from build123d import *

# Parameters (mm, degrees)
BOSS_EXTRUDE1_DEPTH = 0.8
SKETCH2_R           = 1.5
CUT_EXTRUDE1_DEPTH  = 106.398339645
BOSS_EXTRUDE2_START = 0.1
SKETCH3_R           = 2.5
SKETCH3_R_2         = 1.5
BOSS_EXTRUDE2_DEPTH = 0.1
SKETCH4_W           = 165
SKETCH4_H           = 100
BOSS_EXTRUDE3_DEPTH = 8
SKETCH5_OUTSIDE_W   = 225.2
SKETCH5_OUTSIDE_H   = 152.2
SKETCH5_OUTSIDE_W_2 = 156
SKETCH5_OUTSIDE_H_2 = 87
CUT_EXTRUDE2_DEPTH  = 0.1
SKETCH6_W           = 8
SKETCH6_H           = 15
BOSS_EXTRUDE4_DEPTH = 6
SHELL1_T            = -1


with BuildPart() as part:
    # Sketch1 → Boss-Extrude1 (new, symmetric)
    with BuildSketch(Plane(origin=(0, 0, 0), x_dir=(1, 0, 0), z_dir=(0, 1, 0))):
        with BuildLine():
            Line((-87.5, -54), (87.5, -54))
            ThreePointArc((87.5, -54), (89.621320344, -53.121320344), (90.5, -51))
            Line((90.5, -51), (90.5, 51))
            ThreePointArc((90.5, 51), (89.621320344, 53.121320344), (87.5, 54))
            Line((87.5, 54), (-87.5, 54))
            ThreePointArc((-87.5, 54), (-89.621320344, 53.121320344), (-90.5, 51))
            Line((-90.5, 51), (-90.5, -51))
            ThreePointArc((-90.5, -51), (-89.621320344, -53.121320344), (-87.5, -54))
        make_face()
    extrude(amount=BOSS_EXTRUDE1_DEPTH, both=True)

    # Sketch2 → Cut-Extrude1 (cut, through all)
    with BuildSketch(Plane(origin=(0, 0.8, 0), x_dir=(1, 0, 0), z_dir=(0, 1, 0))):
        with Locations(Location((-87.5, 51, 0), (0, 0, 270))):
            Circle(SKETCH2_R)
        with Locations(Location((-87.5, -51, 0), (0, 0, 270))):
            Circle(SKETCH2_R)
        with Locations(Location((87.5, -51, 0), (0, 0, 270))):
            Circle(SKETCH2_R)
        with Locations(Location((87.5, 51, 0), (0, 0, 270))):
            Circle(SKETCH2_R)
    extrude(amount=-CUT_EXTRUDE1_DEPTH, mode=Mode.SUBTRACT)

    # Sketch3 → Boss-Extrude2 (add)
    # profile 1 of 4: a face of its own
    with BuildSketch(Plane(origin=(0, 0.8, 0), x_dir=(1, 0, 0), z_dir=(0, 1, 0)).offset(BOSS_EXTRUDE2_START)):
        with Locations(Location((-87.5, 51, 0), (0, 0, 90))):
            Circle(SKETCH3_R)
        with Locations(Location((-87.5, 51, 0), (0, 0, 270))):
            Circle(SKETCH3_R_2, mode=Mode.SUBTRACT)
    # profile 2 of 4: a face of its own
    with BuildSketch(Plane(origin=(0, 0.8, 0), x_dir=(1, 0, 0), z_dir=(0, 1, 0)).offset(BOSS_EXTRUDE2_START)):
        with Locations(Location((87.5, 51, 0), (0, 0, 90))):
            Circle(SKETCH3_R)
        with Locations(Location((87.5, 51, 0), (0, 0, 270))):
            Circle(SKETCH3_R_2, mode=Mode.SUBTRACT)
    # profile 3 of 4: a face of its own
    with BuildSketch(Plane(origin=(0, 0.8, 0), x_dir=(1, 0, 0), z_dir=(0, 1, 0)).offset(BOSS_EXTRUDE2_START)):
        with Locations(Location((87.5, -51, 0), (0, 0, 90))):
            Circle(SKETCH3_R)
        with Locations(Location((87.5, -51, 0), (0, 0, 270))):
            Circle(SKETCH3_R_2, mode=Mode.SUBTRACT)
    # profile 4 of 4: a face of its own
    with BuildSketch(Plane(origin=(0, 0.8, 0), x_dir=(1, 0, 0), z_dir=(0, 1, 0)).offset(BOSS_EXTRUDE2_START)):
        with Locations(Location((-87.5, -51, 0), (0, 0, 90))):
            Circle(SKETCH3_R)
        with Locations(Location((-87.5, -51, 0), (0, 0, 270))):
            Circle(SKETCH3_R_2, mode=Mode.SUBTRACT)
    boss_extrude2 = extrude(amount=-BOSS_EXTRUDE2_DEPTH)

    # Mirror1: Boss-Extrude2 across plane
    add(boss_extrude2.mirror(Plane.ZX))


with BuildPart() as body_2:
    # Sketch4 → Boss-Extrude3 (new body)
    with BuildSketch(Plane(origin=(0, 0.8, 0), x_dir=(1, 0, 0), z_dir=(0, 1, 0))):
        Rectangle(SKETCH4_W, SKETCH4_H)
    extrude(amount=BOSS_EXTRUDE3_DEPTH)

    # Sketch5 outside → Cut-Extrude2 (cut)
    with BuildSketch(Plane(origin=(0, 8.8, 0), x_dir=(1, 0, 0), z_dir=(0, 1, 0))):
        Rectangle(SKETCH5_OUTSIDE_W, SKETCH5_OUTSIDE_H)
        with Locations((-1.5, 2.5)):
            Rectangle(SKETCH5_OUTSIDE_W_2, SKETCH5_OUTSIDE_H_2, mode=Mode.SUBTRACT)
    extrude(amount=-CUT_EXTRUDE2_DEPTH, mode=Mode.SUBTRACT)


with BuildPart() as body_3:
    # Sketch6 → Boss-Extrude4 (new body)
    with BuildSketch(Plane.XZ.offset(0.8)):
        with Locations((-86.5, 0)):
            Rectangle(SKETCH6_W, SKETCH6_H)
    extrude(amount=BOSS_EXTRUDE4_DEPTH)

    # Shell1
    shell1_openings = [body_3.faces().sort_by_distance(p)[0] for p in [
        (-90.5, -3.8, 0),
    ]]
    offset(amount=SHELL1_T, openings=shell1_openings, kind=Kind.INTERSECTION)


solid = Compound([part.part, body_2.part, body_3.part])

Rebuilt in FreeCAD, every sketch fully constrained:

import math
import FreeCAD as App
import Part
import Sketcher
from FreeCAD import Vector
Q = App.Units.Quantity


def faces_at(feature, points):
    """Names of the faces that lie closest to the given points."""
    faces = feature.Shape.Faces
    near = lambda p: min(range(len(faces)), key=lambda i: faces[i].distToShape(Part.Vertex(*p))[0])
    return sorted({f"Face{near(p) + 1}" for p in points})


def add_polygon(sketch, points):
    """Adds a closed chain of lines whose ends are joined by coincident constraints."""
    first, n = sketch.GeometryCount, len(points)
    for a, b in zip(points, points[1:] + points[:1]):
        sketch.addGeometry(Part.LineSegment(App.Vector(*a, 0), App.Vector(*b, 0)), False)
    for i in range(n):
        sketch.addConstraint(Sketcher.Constraint("Coincident", first + i, 2, first + (i + 1) % n, 1))

doc = App.newDocument("Part")
body = doc.addObject("PartDesign::Body", "Body")

# Sketch on XZ plane
sketch1 = doc.addObject("Sketcher::SketchObject", "Sketch")
body.addObject(sketch1)
sketch1.AttachmentSupport = (doc.XZ_Plane, [""])
sketch1.MapMode = "FlatFace"
sketch1.addGeometry([
    Part.LineSegment(Vector(-87.5, 54, 0), Vector(87.5, 54, 0)),  # 0
    Part.ArcOfCircle(Part.Circle(Vector(87.5, 51, 0), Vector(0, 0, 1), 3), math.radians(0), math.radians(90)),  # 1
    Part.LineSegment(Vector(90.5, 51, 0), Vector(90.5, -51, 0)),  # 2
    Part.ArcOfCircle(Part.Circle(Vector(87.5, -51, 0), Vector(0, 0, 1), 3), math.radians(-90), math.radians(0)),  # 3
    Part.LineSegment(Vector(87.5, -54, 0), Vector(-87.5, -54, 0)),  # 4
    Part.ArcOfCircle(Part.Circle(Vector(-87.5, -51, 0), Vector(0, 0, 1), 3), math.radians(180), math.radians(270)),  # 5
    Part.LineSegment(Vector(-90.5, -51, 0), Vector(-90.5, 51, 0)),  # 6
    Part.ArcOfCircle(Part.Circle(Vector(-87.5, 51, 0), Vector(0, 0, 1), 3), math.radians(90), math.radians(180)),  # 7
], False)
sketch1.addConstraint([
    Sketcher.Constraint("Tangent", 0, 2, 1, 2),
    Sketcher.Constraint("Tangent", 1, 1, 2, 1),
    Sketcher.Constraint("Tangent", 2, 2, 3, 2),
    Sketcher.Constraint("Tangent", 3, 1, 4, 1),
    Sketcher.Constraint("Tangent", 4, 2, 5, 2),
    Sketcher.Constraint("Tangent", 5, 1, 6, 1),
    Sketcher.Constraint("Tangent", 6, 2, 7, 2),
    Sketcher.Constraint("Tangent", 7, 1, 0, 1),
    Sketcher.Constraint("Horizontal", 0),
    Sketcher.Constraint("Vertical", 2),
    Sketcher.Constraint("Horizontal", 4),
    Sketcher.Constraint("Vertical", 6),
    Sketcher.Constraint("Equal", 1, 3),
    Sketcher.Constraint("Equal", 3, 5),
    Sketcher.Constraint("Equal", 5, 7),
    Sketcher.Constraint("Symmetric", 1, 3, 5, 3, -1, 1),
    Sketcher.Constraint("Radius", 1, Q("3 mm")),
    Sketcher.Constraint("DistanceX", 0, 1, 0, 2, Q("175 mm")),
    Sketcher.Constraint("DistanceY", 2, 2, 2, 1, Q("102 mm")),
])
pad1 = doc.addObject("PartDesign::Pad", "Pad")
body.addObject(pad1)
pad1.Profile = sketch1
pad1.Length = 1.6
pad1.Midplane = True

# Sketch on XZ plane
sketch2 = doc.addObject("Sketcher::SketchObject", "Sketch001")
body.addObject(sketch2)
sketch2.AttachmentSupport = (doc.XZ_Plane, [""])
sketch2.MapMode = "FlatFace"
sketch2.AttachmentOffset = App.Placement(Vector(0, 0, -0.8), App.Rotation())
sketch2.addGeometry([
    Part.Circle(Vector(-87.5, -51, 0), Vector(0, 0, 1), 1.5),
    Part.Circle(Vector(-87.5, 51, 0), Vector(0, 0, 1), 1.5),
    Part.Circle(Vector(87.5, 51, 0), Vector(0, 0, 1), 1.5),
    Part.Circle(Vector(87.5, -51, 0), Vector(0, 0, 1), 1.5),
], False)
sketch2.addConstraint([
    Sketcher.Constraint("Equal", 0, 1),
    Sketcher.Constraint("Equal", 1, 2),
    Sketcher.Constraint("Equal", 2, 3),
    Sketcher.Constraint("Symmetric", 0, 3, 2, 3, -1, 1),
    Sketcher.Constraint("Symmetric", 1, 3, 3, 3, -1, 1),
    Sketcher.Constraint("Symmetric", 1, 3, 2, 3, -2),
    Sketcher.Constraint("Diameter", 0, Q("3 mm")),
    Sketcher.Constraint("DistanceY", 0, 3, -1, 1, Q("51 mm")),
    Sketcher.Constraint("DistanceX", 1, 3, 2, 3, Q("175 mm")),
])
pocket1 = doc.addObject("PartDesign::Pocket", "Pocket")
body.addObject(pocket1)
pocket1.Profile = sketch2
pocket1.Type = "ThroughAll"
pocket1.Reversed = True

# Sketch on XZ plane
sketch3 = doc.addObject("Sketcher::SketchObject", "Sketch002")
body.addObject(sketch3)
sketch3.AttachmentSupport = (doc.XZ_Plane, [""])
sketch3.MapMode = "FlatFace"
sketch3.AttachmentOffset = App.Placement(Vector(0, 0, -0.9), App.Rotation())
sketch3.addGeometry([
    Part.Circle(Vector(-87.5, -51, 0), Vector(0, 0, 1), 2.5),  # 0
    Part.Circle(Vector(-87.5, -51, 0), Vector(0, 0, 1), 1.5),  # 1
    Part.Circle(Vector(87.5, -51, 0), Vector(0, 0, 1), 2.5),  # 2
    Part.Circle(Vector(87.5, -51, 0), Vector(0, 0, 1), 1.5),  # 3
    Part.Circle(Vector(87.5, 51, 0), Vector(0, 0, 1), 2.5),  # 4
    Part.Circle(Vector(87.5, 51, 0), Vector(0, 0, 1), 1.5),  # 5
    Part.Circle(Vector(-87.5, 51, 0), Vector(0, 0, 1), 2.5),  # 6
    Part.Circle(Vector(-87.5, 51, 0), Vector(0, 0, 1), 1.5),  # 7
], False)
sketch3.addConstraint([
    Sketcher.Constraint("Coincident", 1, 3, 0, 3),
    Sketcher.Constraint("Coincident", 3, 3, 2, 3),
    Sketcher.Constraint("Coincident", 5, 3, 4, 3),
    Sketcher.Constraint("Coincident", 7, 3, 6, 3),
    Sketcher.Constraint("Equal", 0, 2),
    Sketcher.Constraint("Equal", 1, 3),
    Sketcher.Constraint("Equal", 2, 4),
    Sketcher.Constraint("Equal", 3, 5),
    Sketcher.Constraint("Equal", 4, 6),
    Sketcher.Constraint("Equal", 5, 7),
    Sketcher.Constraint("Symmetric", 0, 3, 4, 3, -1, 1),
    Sketcher.Constraint("Symmetric", 2, 3, 6, 3, -1, 1),
    Sketcher.Constraint("Symmetric", 0, 3, 2, 3, -2),
    Sketcher.Constraint("Diameter", 0, Q("5 mm")),
    Sketcher.Constraint("Diameter", 1, Q("3 mm")),
    Sketcher.Constraint("DistanceY", 0, 3, -1, 1, Q("51 mm")),
    Sketcher.Constraint("DistanceX", 0, 3, 2, 3, Q("175 mm")),
])
pad2 = doc.addObject("PartDesign::Pad", "Pad001")
body.addObject(pad2)
pad2.Profile = sketch3
pad2.Length = 0.1
doc.recompute()

mirrored = doc.addObject("PartDesign::Mirrored", "Mirrored")
body.addObject(mirrored)
mirrored.Originals = [pad2]
mirrored.MirrorPlane = (doc.XZ_Plane, [""])
body.Tip = mirrored
body2 = doc.addObject("PartDesign::Body", "Body001")

# Sketch on XZ plane
sketch4 = doc.addObject("Sketcher::SketchObject", "Sketch003")
body2.addObject(sketch4)
sketch4.AttachmentSupport = (doc.getObject("XZ_Plane001"), [""])
sketch4.MapMode = "FlatFace"
sketch4.AttachmentOffset = App.Placement(Vector(0, 0, -0.8), App.Rotation())
add_polygon(sketch4, [(-82.5, -50), (-82.5, 50), (82.5, 50), (82.5, -50)])  # lines 0-3
sketch4.addConstraint([
    Sketcher.Constraint("Vertical", 0),
    Sketcher.Constraint("Horizontal", 1),
    Sketcher.Constraint("Vertical", 2),
    Sketcher.Constraint("Horizontal", 3),
    Sketcher.Constraint("Symmetric", 0, 2, 2, 2, -1, 1),
    Sketcher.Constraint("DistanceX", 1, 1, 1, 2, Q("165 mm")),
    Sketcher.Constraint("DistanceY", 0, 1, 0, 2, Q("100 mm")),
])
pad3 = doc.addObject("PartDesign::Pad", "Pad002")
body2.addObject(pad3)
pad3.Profile = sketch4
pad3.Length = 8
pad3.Reversed = True

# Sketch on XZ plane
sketch5 = doc.addObject("Sketcher::SketchObject", "Sketch004")
body2.addObject(sketch5)
sketch5.AttachmentSupport = (doc.getObject("XZ_Plane001"), [""])
sketch5.MapMode = "FlatFace"
sketch5.AttachmentOffset = App.Placement(Vector(0, 0, -8.8), App.Rotation())
add_polygon(sketch5, [(-112.6, -76.1), (-112.6, 76.1), (112.6, 76.1), (112.6, -76.1)])  # lines 0-3
add_polygon(sketch5, [(76.5, 41), (-79.5, 41), (-79.5, -46), (76.5, -46)])  # lines 4-7
sketch5.addConstraint([
    Sketcher.Constraint("Vertical", 0),
    Sketcher.Constraint("Horizontal", 1),
    Sketcher.Constraint("Vertical", 2),
    Sketcher.Constraint("Horizontal", 3),
    Sketcher.Constraint("Horizontal", 4),
    Sketcher.Constraint("Vertical", 5),
    Sketcher.Constraint("Horizontal", 6),
    Sketcher.Constraint("Vertical", 7),
    Sketcher.Constraint("Symmetric", 0, 2, 2, 2, -1, 1),
    Sketcher.Constraint("DistanceX", 4, 2, 4, 1, Q("156 mm")),
    Sketcher.Constraint("DistanceY", 5, 2, 5, 1, Q("87 mm")),
    Sketcher.Constraint("DistanceX", 1, 1, 1, 2, Q("225.2 mm")),
    Sketcher.Constraint("DistanceY", 0, 1, 0, 2, Q("152.2 mm")),
    Sketcher.Constraint("DistanceY", -1, 1, 4, 2, Q("41 mm")),
    Sketcher.Constraint("DistanceX", 4, 2, -1, 1, Q("79.5 mm")),
])
pocket2 = doc.addObject("PartDesign::Pocket", "Pocket001")
body2.addObject(pocket2)
pocket2.Profile = sketch5
pocket2.Length = 0.1
pocket2.Reversed = True
body3 = doc.addObject("PartDesign::Body", "Body002")

# Sketch on XZ plane
sketch6 = doc.addObject("Sketcher::SketchObject", "Sketch005")
body3.addObject(sketch6)
sketch6.AttachmentSupport = (doc.getObject("XZ_Plane002"), [""])
sketch6.MapMode = "FlatFace"
sketch6.AttachmentOffset = App.Placement(Vector(0, 0, 0.8), App.Rotation())
add_polygon(sketch6, [(-90.5, 7.5), (-90.5, -7.5), (-82.5, -7.5), (-82.5, 7.5)])  # lines 0-3
sketch6.addConstraint([
    Sketcher.Constraint("Vertical", 0),
    Sketcher.Constraint("Horizontal", 1),
    Sketcher.Constraint("Vertical", 2),
    Sketcher.Constraint("Horizontal", 3),
    Sketcher.Constraint("DistanceX", 1, 1, 1, 2, Q("8 mm")),
    Sketcher.Constraint("DistanceY", 0, 2, 0, 1, Q("15 mm")),
    Sketcher.Constraint("DistanceX", 0, 2, -1, 1, Q("90.5 mm")),
    Sketcher.Constraint("DistanceY", 0, 2, -1, 1, Q("7.5 mm")),
])
pad4 = doc.addObject("PartDesign::Pad", "Pad003")
body3.addObject(pad4)
pad4.Profile = sketch6
pad4.Length = 6
doc.recompute()

thickness = doc.addObject("PartDesign::Thickness", "Thickness")
body3.addObject(thickness)
thickness.Base = (pad4, faces_at(pad4, [(-90.5, -3.8, 0)]))
thickness.Value = 1
thickness.Reversed = True
thickness.Join = "Intersection"

doc.recompute()
